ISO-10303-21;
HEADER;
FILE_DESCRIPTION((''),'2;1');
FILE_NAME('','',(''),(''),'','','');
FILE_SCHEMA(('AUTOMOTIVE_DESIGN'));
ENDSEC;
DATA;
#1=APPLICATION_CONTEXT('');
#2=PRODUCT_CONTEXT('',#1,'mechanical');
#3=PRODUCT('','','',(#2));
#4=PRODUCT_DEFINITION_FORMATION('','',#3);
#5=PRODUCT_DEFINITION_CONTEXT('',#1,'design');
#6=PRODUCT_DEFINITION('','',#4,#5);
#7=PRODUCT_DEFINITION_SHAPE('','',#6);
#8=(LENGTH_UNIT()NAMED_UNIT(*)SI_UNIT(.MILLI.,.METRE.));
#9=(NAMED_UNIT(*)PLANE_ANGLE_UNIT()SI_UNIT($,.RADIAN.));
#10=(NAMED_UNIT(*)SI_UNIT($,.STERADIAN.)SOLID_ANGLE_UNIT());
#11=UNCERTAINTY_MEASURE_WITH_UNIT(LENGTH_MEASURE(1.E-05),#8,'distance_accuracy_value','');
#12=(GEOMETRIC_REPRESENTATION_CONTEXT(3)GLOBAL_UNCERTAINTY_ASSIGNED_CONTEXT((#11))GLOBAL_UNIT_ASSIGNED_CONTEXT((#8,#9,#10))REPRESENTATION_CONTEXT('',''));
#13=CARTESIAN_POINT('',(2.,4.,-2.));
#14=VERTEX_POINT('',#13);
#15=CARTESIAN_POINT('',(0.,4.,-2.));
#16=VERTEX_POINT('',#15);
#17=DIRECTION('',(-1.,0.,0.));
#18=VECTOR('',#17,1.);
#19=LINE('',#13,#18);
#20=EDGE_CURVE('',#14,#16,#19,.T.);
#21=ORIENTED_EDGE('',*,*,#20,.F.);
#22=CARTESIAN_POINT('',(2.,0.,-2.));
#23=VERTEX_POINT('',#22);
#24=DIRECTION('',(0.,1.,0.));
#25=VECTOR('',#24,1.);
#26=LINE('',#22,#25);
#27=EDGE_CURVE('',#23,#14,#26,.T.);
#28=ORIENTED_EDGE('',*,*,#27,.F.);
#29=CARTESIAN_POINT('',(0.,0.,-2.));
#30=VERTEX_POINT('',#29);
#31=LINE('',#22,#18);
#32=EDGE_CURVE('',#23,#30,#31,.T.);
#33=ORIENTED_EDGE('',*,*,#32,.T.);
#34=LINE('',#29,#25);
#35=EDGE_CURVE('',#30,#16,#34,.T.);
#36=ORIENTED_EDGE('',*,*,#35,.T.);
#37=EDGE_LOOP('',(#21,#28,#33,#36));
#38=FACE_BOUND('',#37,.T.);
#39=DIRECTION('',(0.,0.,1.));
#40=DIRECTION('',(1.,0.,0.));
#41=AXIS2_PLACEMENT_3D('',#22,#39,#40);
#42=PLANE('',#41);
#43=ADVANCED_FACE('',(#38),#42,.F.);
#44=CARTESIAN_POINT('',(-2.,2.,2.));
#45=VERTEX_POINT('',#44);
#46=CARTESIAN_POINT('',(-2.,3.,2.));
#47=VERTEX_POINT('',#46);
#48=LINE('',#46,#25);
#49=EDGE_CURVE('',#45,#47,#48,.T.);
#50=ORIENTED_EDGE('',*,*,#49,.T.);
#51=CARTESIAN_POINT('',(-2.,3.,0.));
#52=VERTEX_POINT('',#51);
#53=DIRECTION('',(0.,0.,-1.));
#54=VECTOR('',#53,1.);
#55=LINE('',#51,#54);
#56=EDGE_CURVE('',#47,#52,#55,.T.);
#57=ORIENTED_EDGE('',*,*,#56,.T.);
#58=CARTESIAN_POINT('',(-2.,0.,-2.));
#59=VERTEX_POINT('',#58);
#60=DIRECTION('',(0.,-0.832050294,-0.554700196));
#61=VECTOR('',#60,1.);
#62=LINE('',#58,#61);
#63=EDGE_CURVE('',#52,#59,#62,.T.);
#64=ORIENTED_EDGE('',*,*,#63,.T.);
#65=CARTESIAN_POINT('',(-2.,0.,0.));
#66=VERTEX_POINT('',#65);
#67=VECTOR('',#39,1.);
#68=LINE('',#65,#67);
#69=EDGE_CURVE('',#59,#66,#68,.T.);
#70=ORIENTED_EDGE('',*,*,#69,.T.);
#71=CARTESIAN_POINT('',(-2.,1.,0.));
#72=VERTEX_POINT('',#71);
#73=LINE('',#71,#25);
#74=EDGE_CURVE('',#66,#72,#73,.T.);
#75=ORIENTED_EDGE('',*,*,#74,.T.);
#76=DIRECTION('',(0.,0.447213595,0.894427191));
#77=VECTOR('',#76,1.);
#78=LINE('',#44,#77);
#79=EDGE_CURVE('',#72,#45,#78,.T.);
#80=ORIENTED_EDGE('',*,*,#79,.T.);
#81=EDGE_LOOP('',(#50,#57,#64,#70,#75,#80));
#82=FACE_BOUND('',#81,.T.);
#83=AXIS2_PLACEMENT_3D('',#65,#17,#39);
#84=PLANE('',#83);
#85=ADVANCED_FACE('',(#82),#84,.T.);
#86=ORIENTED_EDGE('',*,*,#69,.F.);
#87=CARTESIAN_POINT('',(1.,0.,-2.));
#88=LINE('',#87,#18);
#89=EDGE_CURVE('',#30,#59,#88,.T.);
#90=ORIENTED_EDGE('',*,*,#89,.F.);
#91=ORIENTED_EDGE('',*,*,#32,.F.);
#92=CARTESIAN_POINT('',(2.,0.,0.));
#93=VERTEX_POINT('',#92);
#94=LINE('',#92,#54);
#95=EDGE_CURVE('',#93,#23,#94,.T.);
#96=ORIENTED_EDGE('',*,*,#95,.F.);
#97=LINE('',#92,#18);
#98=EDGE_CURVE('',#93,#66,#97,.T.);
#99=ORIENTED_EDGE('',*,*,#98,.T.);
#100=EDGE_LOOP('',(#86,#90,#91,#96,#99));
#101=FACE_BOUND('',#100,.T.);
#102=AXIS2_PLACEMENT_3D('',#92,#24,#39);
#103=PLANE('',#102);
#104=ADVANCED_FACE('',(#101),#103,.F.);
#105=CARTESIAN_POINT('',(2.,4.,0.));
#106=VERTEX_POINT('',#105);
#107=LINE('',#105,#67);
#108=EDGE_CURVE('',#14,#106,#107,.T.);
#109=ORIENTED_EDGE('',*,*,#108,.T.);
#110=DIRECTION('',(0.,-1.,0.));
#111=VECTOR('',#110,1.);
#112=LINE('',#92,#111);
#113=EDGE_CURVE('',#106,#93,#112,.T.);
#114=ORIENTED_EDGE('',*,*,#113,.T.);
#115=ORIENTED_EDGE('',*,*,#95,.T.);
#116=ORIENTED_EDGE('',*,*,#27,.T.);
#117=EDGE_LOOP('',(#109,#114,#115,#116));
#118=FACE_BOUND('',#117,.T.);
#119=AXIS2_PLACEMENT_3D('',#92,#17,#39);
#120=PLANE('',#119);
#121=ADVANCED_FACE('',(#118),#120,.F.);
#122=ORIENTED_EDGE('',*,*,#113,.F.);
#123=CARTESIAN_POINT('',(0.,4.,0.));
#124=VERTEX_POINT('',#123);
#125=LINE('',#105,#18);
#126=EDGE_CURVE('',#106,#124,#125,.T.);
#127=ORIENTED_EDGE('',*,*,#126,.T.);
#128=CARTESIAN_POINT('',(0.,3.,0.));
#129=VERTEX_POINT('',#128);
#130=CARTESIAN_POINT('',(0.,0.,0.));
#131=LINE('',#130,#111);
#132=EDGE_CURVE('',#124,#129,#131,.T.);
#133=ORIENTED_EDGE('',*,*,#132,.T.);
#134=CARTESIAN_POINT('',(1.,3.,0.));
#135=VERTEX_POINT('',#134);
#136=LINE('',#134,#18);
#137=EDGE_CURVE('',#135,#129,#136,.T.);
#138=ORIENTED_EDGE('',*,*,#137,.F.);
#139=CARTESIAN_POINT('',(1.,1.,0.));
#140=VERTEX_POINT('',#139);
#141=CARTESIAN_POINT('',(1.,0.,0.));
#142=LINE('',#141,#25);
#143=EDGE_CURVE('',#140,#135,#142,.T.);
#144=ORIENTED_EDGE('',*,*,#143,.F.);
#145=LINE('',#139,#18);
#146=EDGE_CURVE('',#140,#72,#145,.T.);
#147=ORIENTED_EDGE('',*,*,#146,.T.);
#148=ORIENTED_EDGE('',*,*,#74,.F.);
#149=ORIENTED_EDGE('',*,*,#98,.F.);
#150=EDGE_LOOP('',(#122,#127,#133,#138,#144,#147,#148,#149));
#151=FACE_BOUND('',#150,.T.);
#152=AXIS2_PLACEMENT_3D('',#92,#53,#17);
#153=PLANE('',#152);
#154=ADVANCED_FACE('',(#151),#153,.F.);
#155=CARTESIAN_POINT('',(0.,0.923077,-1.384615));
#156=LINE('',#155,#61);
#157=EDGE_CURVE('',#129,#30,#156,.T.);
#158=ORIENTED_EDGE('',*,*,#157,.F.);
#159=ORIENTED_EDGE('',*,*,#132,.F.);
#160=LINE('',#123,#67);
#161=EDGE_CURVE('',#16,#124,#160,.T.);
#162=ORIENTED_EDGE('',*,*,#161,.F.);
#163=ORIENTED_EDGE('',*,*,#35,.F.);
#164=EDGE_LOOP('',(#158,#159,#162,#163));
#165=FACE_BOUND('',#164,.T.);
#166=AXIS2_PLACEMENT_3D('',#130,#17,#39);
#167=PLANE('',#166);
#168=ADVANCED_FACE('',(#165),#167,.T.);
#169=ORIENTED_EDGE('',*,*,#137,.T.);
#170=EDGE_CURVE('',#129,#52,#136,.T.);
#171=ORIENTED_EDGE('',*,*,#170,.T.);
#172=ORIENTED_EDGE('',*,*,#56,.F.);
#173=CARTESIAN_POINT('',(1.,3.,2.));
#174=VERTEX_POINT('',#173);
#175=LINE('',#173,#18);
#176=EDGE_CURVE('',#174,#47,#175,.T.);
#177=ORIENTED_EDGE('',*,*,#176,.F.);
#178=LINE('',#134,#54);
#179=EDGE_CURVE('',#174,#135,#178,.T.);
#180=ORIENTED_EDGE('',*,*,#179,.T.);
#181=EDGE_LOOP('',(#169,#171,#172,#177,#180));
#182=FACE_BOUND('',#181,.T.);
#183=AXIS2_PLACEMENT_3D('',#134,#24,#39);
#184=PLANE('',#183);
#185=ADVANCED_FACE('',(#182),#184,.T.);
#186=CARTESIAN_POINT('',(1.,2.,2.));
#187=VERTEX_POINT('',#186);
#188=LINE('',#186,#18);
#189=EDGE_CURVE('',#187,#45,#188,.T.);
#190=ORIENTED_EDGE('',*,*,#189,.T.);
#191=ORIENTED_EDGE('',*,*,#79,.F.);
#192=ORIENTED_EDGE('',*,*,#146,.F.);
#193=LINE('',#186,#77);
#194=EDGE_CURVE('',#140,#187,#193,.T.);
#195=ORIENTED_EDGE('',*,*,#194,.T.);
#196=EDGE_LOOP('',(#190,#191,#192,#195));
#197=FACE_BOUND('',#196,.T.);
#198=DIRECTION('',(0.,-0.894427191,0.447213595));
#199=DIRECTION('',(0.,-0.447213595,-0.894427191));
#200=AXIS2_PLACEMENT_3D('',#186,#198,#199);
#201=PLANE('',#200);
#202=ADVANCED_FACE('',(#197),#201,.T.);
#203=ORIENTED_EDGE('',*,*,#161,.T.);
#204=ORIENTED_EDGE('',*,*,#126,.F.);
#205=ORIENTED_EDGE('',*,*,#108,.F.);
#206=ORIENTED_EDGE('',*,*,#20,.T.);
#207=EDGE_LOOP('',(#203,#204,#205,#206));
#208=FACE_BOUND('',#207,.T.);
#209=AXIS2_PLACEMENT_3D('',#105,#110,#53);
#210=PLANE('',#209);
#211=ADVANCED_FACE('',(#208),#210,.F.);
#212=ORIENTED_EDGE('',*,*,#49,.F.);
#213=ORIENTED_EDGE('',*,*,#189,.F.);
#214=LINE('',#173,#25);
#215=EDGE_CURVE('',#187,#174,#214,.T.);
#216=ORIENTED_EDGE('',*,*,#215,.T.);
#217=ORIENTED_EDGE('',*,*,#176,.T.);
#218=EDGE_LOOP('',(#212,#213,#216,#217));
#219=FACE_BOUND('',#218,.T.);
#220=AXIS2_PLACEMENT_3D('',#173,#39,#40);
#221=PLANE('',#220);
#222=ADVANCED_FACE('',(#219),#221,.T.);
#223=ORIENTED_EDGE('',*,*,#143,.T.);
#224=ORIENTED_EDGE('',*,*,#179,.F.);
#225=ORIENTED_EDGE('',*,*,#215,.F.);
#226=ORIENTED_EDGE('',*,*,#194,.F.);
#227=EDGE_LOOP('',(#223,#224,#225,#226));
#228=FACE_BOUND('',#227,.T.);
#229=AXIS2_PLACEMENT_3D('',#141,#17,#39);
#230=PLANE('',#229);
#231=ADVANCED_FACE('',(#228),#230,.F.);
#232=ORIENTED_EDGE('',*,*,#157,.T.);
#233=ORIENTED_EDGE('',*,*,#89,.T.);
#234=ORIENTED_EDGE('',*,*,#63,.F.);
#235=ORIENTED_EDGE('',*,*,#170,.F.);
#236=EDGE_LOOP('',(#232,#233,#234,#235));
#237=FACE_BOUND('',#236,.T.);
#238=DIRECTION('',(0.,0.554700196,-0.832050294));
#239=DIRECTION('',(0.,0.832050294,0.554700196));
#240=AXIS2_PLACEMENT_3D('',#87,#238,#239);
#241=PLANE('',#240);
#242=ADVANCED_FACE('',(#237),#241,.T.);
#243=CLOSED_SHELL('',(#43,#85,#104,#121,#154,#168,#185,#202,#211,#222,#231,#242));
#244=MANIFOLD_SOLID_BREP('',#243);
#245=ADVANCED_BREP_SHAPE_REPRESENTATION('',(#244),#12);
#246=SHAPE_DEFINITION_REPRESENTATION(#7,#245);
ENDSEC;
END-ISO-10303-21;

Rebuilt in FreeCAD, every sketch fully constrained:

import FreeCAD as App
import Part
import Sketcher
from FreeCAD import Vector

doc = App.newDocument("Part")
params = doc.addObject("Spreadsheet::Sheet", "Params")
for row, (alias, value) in enumerate([
    ("sketch1_width", "4 mm"),
    ("sketch1_height", "2 mm"),
    ("pad1_length", "2 mm"),
    ("sketch2_width", "1 mm"),
    ("sketch2_height", "2 mm"),
    ("pad2_length", "2 mm"),
    ("pad2_length2", "1 mm"),
], start=1):
    params.set(f"A{row}", alias)
    params.set(f"B{row}", "=" + value)
    params.setAlias(f"B{row}", alias)

body = doc.addObject("PartDesign::Body", "Body")

# Sketch on YZ plane
sketch1 = body.newObject("Sketcher::SketchObject", "Sketch")
sketch1.AttachmentSupport = (doc.getObject("YZ_Plane"), [""])
sketch1.MapMode = "FlatFace"
sketch1.addGeometry([
    Part.LineSegment(Vector(4, 0, 0), Vector(0, 0, 0)),
    Part.LineSegment(Vector(0, 0, 0), Vector(0, -2, 0)),
    Part.LineSegment(Vector(0, -2, 0), Vector(4, -2, 0)),
    Part.LineSegment(Vector(4, -2, 0), Vector(4, 0, 0)),
], False)
sketch1.addConstraint([
    Sketcher.Constraint("Coincident", 0, 2, 1, 1),
    Sketcher.Constraint("Coincident", 1, 2, 2, 1),
    Sketcher.Constraint("Coincident", 2, 2, 3, 1),
    Sketcher.Constraint("Coincident", 3, 2, 0, 1),
    Sketcher.Constraint("Horizontal", 0),
    Sketcher.Constraint("Vertical", 1),
    Sketcher.Constraint("Horizontal", 2),
    Sketcher.Constraint("Vertical", 3),
    Sketcher.Constraint("Coincident", 0, 2, -1, 1),
    Sketcher.Constraint("DistanceX", 0, 2, 0, 1, 4.0),
    Sketcher.Constraint("DistanceY", 1, 2, 1, 1, 2.0),
])
sketch1.setExpression("Constraints[9]", "Params.sketch1_width")
sketch1.setExpression("Constraints[10]", "Params.sketch1_height")
pad1 = body.newObject("PartDesign::Pad", "Pad")
pad1.Profile = sketch1
pad1.setExpression("Length", "Params.pad1_length")

# Sketch on YZ plane
sketch2 = body.newObject("Sketcher::SketchObject", "Sketch001")
sketch2.AttachmentSupport = (doc.getObject("YZ_Plane"), [""])
sketch2.MapMode = "FlatFace"
sketch2.addGeometry([
    Part.LineSegment(Vector(3, 0, 0), Vector(0, -2, 0)),  # 0
    Part.LineSegment(Vector(0, -2, 0), Vector(0, 0, 0)),  # 1
    Part.LineSegment(Vector(0, 0, 0), Vector(1, 0, 0)),  # 2
    Part.LineSegment(Vector(1, 0, 0), Vector(2, 2, 0)),  # 3
    Part.LineSegment(Vector(2, 2, 0), Vector(3, 2, 0)),  # 4
    Part.LineSegment(Vector(3, 2, 0), Vector(3, 0, 0)),  # 5
], False)
sketch2.addConstraint([
    Sketcher.Constraint("Coincident", 0, 2, 1, 1),
    Sketcher.Constraint("Coincident", 1, 2, 2, 1),
    Sketcher.Constraint("Coincident", 2, 2, 3, 1),
    Sketcher.Constraint("Coincident", 3, 2, 4, 1),
    Sketcher.Constraint("Coincident", 4, 2, 5, 1),
    Sketcher.Constraint("Coincident", 5, 2, 0, 1),
    Sketcher.Constraint("Vertical", 1),
    Sketcher.Constraint("Horizontal", 2),
    Sketcher.Constraint("Horizontal", 4),
    Sketcher.Constraint("Vertical", 5),
    Sketcher.Constraint("Coincident", 1, 2, -1, 1),
    Sketcher.Constraint("PointOnObject", 5, 2, -1),
    Sketcher.Constraint("Equal", 2, 4),
    Sketcher.Constraint("Equal", 1, 5),
    Sketcher.Constraint("DistanceX", 2, 1, 2, 2, 1.0),
    Sketcher.Constraint("DistanceY", 1, 1, 1, 2, 2.0),
    Sketcher.Constraint("DistanceX", -1, 1, 3, 2, 2.0),
])
sketch2.setExpression("Constraints[14]", "Params.sketch2_width")
sketch2.setExpression("Constraints[15]", "Params.sketch2_height")
pad2 = body.newObject("PartDesign::Pad", "Pad001")
pad2.Profile = sketch2
pad2.Type = "TwoLengths"
pad2.setExpression("Length", "Params.pad2_length")
pad2.setExpression("Length2", "Params.pad2_length2")
pad2.Reversed = True

doc.recompute()
